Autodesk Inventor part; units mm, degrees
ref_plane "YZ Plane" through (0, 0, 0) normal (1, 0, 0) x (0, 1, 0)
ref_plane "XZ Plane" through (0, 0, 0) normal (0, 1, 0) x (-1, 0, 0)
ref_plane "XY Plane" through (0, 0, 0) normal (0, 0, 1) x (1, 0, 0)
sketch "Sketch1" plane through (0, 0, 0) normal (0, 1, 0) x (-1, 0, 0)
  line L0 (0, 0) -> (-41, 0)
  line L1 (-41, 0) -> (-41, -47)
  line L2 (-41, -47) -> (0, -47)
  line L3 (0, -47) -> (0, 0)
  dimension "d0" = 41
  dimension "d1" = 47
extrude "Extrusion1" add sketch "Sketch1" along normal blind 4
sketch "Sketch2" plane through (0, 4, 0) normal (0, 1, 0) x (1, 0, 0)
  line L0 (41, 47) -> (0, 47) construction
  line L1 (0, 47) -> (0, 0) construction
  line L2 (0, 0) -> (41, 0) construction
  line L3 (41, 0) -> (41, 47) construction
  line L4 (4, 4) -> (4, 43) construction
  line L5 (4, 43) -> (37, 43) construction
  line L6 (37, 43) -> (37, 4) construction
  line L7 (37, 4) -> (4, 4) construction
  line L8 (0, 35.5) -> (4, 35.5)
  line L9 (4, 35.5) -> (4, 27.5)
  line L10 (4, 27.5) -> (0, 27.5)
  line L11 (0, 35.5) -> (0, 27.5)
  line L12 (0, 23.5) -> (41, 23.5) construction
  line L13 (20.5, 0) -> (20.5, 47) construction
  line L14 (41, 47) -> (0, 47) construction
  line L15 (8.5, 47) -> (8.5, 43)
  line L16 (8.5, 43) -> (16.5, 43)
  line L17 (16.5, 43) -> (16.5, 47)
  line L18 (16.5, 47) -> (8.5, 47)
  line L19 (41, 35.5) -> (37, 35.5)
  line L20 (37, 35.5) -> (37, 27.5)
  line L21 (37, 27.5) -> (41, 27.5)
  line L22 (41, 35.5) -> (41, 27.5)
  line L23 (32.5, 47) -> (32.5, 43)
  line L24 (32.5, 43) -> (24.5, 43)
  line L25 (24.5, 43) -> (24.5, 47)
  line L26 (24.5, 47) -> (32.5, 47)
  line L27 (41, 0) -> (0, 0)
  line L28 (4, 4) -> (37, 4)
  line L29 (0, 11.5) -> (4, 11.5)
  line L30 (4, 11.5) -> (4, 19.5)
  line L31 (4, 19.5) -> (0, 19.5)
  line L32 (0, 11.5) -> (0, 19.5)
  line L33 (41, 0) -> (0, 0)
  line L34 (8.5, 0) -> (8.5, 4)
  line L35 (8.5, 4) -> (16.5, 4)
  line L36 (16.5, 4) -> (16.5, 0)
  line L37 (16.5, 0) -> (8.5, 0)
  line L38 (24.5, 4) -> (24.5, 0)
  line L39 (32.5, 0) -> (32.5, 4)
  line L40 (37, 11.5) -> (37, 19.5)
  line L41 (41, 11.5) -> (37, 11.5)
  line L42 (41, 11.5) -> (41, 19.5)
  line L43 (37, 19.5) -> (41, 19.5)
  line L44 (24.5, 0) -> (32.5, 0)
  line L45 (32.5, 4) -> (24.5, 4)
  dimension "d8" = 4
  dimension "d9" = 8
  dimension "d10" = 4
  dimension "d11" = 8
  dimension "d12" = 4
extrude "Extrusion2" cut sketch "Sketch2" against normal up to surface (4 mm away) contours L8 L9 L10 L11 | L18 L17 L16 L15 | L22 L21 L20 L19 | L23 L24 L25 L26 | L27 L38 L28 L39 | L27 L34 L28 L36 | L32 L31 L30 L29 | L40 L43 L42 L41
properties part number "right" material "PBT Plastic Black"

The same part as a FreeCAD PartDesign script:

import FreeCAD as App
import Part
import Sketcher

V = App.Vector


def add_polygon(sketch, points):
    """Adds a closed chain of lines whose ends are joined by coincident constraints."""
    first, n = sketch.GeometryCount, len(points)
    for a, b in zip(points, points[1:] + points[:1]):
        sketch.addGeometry(Part.LineSegment(App.Vector(*a, 0), App.Vector(*b, 0)), False)
    for i in range(n):
        sketch.addConstraint(Sketcher.Constraint("Coincident", first + i, 2, first + (i + 1) % n, 1))

doc = App.newDocument("Part")
body = doc.addObject("PartDesign::Body", "Body")

sketch1 = body.newObject("Sketcher::SketchObject", "Sketch")
sketch1.AttachmentSupport = (doc.getObject("XZ_Plane"), [""])
sketch1.MapMode = "FlatFace"
add_polygon(sketch1, [(0, -47), (0, 0), (41, 0), (41, -47)])
sketch1.addConstraint(Sketcher.Constraint("Vertical", 0))
sketch1.addConstraint(Sketcher.Constraint("Horizontal", 1))
sketch1.addConstraint(Sketcher.Constraint("Vertical", 2))
sketch1.addConstraint(Sketcher.Constraint("Horizontal", 3))
sketch1.addConstraint(Sketcher.Constraint("Coincident", 0, 2, -1, 1))
sketch1.addConstraint(Sketcher.Constraint("DistanceX", 1, 1, 1, 2, 41.0))
sketch1.addConstraint(Sketcher.Constraint("DistanceY", 0, 1, 0, 2, 47.0))
pad1 = body.newObject("PartDesign::Pad", "Pad")
pad1.Profile = sketch1
pad1.Length = 4
pad1.Reversed = True

sketch2 = body.newObject("Sketcher::SketchObject", "Sketch001")
sketch2.AttachmentSupport = (doc.getObject("XZ_Plane"), [""])
sketch2.MapMode = "FlatFace"
sketch2.AttachmentOffset = App.Placement(V(0, 0, -4), App.Rotation())
add_polygon(sketch2, [(4, -35.5), (0, -35.5), (0, -27.5), (4, -27.5)])
add_polygon(sketch2, [(16.5, -47), (8.5, -47), (8.5, -43), (16.5, -43)])
add_polygon(sketch2, [(41, -27.5), (41, -35.5), (37, -35.5), (37, -27.5)])
add_polygon(sketch2, [(32.5, -43), (32.5, -47), (24.5, -47), (24.5, -43)])
add_polygon(sketch2, [(24.5, 0), (32.5, 0), (32.5, -4), (24.5, -4)])
add_polygon(sketch2, [(8.5, 0), (16.5, 0), (16.5, -4), (8.5, -4)])
add_polygon(sketch2, [(0, -19.5), (0, -11.5), (4, -11.5), (4, -19.5)])
add_polygon(sketch2, [(37, -19.5), (37, -11.5), (41, -11.5), (41, -19.5)])
sketch2.addConstraint(Sketcher.Constraint("Horizontal", 0))
sketch2.addConstraint(Sketcher.Constraint("Vertical", 1))
sketch2.addConstraint(Sketcher.Constraint("Horizontal", 2))
sketch2.addConstraint(Sketcher.Constraint("Vertical", 3))
sketch2.addConstraint(Sketcher.Constraint("Horizontal", 4))
sketch2.addConstraint(Sketcher.Constraint("Vertical", 5))
sketch2.addConstraint(Sketcher.Constraint("Horizontal", 6))
sketch2.addConstraint(Sketcher.Constraint("Vertical", 7))
sketch2.addConstraint(Sketcher.Constraint("Vertical", 8))
sketch2.addConstraint(Sketcher.Constraint("Horizontal", 9))
sketch2.addConstraint(Sketcher.Constraint("Vertical", 10))
sketch2.addConstraint(Sketcher.Constraint("Horizontal", 11))
sketch2.addConstraint(Sketcher.Constraint("Vertical", 12))
sketch2.addConstraint(Sketcher.Constraint("Horizontal", 13))
sketch2.addConstraint(Sketcher.Constraint("Vertical", 14))
sketch2.addConstraint(Sketcher.Constraint("Horizontal", 15))
sketch2.addConstraint(Sketcher.Constraint("Horizontal", 16))
sketch2.addConstraint(Sketcher.Constraint("Vertical", 17))
sketch2.addConstraint(Sketcher.Constraint("Horizontal", 18))
sketch2.addConstraint(Sketcher.Constraint("Vertical", 19))
sketch2.addConstraint(Sketcher.Constraint("Horizontal", 20))
sketch2.addConstraint(Sketcher.Constraint("Vertical", 21))
sketch2.addConstraint(Sketcher.Constraint("Horizontal", 22))
sketch2.addConstraint(Sketcher.Constraint("Vertical", 23))
sketch2.addConstraint(Sketcher.Constraint("Vertical", 24))
sketch2.addConstraint(Sketcher.Constraint("Horizontal", 25))
sketch2.addConstraint(Sketcher.Constraint("Vertical", 26))
sketch2.addConstraint(Sketcher.Constraint("Horizontal", 27))
sketch2.addConstraint(Sketcher.Constraint("Vertical", 28))
sketch2.addConstraint(Sketcher.Constraint("Horizontal", 29))
sketch2.addConstraint(Sketcher.Constraint("Vertical", 30))
sketch2.addConstraint(Sketcher.Constraint("Horizontal", 31))
sketch2.addConstraint(Sketcher.Constraint("PointOnObject", 0, 2, -2))
sketch2.addConstraint(Sketcher.Constraint("PointOnObject", 16, 2, -1))
sketch2.addConstraint(Sketcher.Constraint("PointOnObject", 20, 2, -1))
sketch2.addConstraint(Sketcher.Constraint("PointOnObject", 24, 2, -2))
sketch2.addConstraint(Sketcher.Constraint("Horizontal", 3, 2, 8, 2))
sketch2.addConstraint(Sketcher.Constraint("Horizontal", 2, 2, 10, 2))
sketch2.addConstraint(Sketcher.Constraint("Horizontal", 7, 2, 12, 2))
sketch2.addConstraint(Sketcher.Constraint("Horizontal", 6, 2, 14, 2))
sketch2.addConstraint(Sketcher.Constraint("Horizontal", 18, 2, 21, 2))
sketch2.addConstraint(Sketcher.Constraint("Horizontal", 25, 2, 28, 2))
sketch2.addConstraint(Sketcher.Constraint("Horizontal", 27, 2, 30, 2))
sketch2.addConstraint(Sketcher.Constraint("Vertical", 15, 2, 16, 2))
sketch2.addConstraint(Sketcher.Constraint("Vertical", 14, 2, 18, 2))
sketch2.addConstraint(Sketcher.Constraint("Vertical", 7, 2, 20, 2))
sketch2.addConstraint(Sketcher.Constraint("Vertical", 5, 2, 22, 2))
sketch2.addConstraint(Sketcher.Constraint("Vertical", 3, 2, 25, 2))
sketch2.addConstraint(Sketcher.Constraint("Vertical", 10, 2, 28, 2))
sketch2.addConstraint(Sketcher.Constraint("Vertical", 11, 2, 29, 2))
sketch2.addConstraint(Sketcher.Constraint("Equal", 2, 9))
sketch2.addConstraint(Sketcher.Constraint("Equal", 6, 13))
sketch2.addConstraint(Sketcher.Constraint("Equal", 22, 1))
sketch2.addConstraint(Sketcher.Constraint("Equal", 31, 5))
sketch2.addConstraint(Sketcher.Constraint("Equal", 14, 17))
sketch2.addConstraint(Sketcher.Constraint("Equal", 10, 24))
sketch2.addConstraint(Sketcher.Constraint("DistanceX", 0, 2, 0, 1, 4.0))
sketch2.addConstraint(Sketcher.Constraint("DistanceX", 4, 2, 4, 1, 8.0))
sketch2.addConstraint(Sketcher.Constraint("DistanceX", 7, 2, 13, 2, 8.0))
sketch2.addConstraint(Sketcher.Constraint("DistanceY", 2, 2, 26, 2, 8.0))
sketch2.addConstraint(Sketcher.Constraint("DistanceY", 4, 2, -1, 1, 47.0))
sketch2.addConstraint(Sketcher.Constraint("DistanceX", -1, 1, 8, 2, 41.0))
sketch2.addConstraint(Sketcher.Constraint("DistanceY", 0, 2, -1, 1, 35.5))
sketch2.addConstraint(Sketcher.Constraint("DistanceX", -1, 1, 4, 2, 8.5))
pocket1 = body.newObject("PartDesign::Pocket", "Pocket")
pocket1.Profile = sketch2
pocket1.Length = 4
pocket1.Reversed = True

doc.recompute()
